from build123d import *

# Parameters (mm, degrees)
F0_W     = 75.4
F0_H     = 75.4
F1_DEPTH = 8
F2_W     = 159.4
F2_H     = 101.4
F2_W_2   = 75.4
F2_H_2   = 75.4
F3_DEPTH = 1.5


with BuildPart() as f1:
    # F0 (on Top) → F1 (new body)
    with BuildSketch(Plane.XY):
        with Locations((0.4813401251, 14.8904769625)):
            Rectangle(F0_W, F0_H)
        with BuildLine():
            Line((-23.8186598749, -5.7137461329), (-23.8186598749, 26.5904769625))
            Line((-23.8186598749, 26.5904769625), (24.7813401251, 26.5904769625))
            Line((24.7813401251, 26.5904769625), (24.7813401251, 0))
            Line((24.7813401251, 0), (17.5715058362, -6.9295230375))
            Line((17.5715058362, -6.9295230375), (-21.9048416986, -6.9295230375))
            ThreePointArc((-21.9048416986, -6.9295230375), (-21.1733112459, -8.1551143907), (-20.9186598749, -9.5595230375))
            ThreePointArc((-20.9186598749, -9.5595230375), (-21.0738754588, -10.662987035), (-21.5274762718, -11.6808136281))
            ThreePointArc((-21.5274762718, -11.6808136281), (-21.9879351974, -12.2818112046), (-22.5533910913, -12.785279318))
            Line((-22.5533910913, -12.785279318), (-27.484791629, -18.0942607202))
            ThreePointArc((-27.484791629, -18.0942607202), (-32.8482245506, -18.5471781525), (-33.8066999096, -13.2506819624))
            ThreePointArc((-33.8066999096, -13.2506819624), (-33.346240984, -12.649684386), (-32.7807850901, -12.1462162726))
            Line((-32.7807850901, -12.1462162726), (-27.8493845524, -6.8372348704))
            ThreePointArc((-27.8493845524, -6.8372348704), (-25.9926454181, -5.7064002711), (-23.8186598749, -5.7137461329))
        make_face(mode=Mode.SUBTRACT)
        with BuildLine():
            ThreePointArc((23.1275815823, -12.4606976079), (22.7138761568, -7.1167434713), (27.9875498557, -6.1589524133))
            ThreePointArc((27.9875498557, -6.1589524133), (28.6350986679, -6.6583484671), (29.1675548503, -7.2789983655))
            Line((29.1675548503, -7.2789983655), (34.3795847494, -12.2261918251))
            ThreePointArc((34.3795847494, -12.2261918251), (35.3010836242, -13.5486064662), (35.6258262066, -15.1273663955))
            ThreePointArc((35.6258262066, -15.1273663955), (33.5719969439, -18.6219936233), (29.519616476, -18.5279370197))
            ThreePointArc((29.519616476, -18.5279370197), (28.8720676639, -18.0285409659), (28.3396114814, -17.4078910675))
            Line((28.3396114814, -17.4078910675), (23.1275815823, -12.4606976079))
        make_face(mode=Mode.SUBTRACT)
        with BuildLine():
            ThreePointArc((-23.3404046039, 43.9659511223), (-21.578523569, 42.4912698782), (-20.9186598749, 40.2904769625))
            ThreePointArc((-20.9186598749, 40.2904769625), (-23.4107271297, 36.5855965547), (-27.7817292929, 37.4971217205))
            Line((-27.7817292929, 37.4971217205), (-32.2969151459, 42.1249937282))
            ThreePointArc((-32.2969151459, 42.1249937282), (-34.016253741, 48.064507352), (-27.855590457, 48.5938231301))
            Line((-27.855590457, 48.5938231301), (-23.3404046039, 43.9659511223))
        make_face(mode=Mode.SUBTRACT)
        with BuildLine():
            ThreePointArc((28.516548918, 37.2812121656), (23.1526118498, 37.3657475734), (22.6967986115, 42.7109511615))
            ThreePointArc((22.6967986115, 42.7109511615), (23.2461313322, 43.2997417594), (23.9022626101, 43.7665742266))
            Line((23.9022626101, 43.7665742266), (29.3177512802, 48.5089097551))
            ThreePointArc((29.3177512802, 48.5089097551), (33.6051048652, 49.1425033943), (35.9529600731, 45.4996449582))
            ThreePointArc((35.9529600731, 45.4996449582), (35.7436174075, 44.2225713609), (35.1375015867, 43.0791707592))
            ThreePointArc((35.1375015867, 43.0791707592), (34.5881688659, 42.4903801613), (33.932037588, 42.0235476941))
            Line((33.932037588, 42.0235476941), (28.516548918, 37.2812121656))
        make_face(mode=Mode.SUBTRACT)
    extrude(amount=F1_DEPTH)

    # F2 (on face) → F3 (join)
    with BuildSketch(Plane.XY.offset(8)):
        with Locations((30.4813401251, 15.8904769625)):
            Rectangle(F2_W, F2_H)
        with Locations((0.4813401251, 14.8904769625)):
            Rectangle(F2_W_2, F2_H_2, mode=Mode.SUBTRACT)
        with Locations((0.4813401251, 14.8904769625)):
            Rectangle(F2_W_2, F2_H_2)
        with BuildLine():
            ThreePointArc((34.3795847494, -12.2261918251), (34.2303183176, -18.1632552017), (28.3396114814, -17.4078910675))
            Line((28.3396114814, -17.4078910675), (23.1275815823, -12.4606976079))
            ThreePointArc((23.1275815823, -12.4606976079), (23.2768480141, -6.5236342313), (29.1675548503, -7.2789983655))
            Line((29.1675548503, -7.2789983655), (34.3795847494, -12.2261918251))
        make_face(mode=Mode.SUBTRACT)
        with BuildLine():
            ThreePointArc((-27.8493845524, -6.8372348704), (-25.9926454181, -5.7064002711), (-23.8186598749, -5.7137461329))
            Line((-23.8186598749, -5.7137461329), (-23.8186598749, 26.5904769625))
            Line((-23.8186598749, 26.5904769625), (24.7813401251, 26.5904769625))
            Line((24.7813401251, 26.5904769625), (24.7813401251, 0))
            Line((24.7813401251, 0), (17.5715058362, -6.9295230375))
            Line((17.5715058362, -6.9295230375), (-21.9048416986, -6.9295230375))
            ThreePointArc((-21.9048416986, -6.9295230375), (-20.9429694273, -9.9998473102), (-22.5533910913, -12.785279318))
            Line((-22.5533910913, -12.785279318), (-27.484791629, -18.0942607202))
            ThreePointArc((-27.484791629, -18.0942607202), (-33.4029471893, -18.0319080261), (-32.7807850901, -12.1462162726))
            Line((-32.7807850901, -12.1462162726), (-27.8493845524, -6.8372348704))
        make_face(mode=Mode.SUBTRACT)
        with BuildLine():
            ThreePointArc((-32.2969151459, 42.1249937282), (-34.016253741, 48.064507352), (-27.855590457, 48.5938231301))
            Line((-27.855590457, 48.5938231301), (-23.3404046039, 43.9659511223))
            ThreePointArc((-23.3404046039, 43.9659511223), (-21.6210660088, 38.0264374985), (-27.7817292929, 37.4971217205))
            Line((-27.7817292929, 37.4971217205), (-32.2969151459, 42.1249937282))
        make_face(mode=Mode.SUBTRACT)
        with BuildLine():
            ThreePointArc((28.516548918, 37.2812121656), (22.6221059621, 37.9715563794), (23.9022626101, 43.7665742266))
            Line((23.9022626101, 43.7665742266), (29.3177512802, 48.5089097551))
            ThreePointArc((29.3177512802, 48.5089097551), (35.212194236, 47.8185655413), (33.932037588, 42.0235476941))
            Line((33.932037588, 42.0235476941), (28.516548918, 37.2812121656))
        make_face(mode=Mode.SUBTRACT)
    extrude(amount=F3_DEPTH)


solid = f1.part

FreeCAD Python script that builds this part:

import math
import FreeCAD as App
import Part
import Sketcher

V = App.Vector
Q = App.Units.Quantity

doc = App.newDocument("Part")
params = doc.addObject("Spreadsheet::Sheet", "Params")
for row, (alias, value) in enumerate([
    ("sketch1_radius", "4 mm"),
    ("sketch1_length", "10 mm"),
    ("sketch1_width", "75.4 mm"),
    ("sketch1_width2", "48.6 mm"),
    ("pad1_length", "8 mm"),
    ("sketch2_radius", "4 mm"),
    ("sketch2_length", "10 mm"),
    ("sketch2_width", "159.4 mm"),
    ("sketch2_width2", "48.6 mm"),
    ("sketch2_height", "101.4 mm"),
    ("pad2_length", "1.5 mm"),
], start=1):
    params.set(f"A{row}", alias)
    params.set(f"B{row}", "=" + value)
    params.setAlias(f"B{row}", alias)

body = doc.addObject("PartDesign::Body", "Body")

# Sketch on XY plane
sketch1 = body.newObject("Sketcher::SketchObject", "Sketch")
sketch1.AttachmentSupport = (doc.getObject("XY_Plane"), [""])
sketch1.MapMode = "FlatFace"
sketch1.addGeometry([
    Part.LineSegment(V(-37.21866, 52.590477, 0), V(-37.21866, -22.809523, 0)),  # 0
    Part.LineSegment(V(-37.21866, -22.809523, 0), V(38.18134, -22.809523, 0)),  # 1
    Part.LineSegment(V(38.18134, -22.809523, 0), V(38.18134, 52.590477, 0)),  # 2
    Part.LineSegment(V(38.18134, 52.590477, 0), V(-37.21866, 52.590477, 0)),  # 3
    Part.ArcOfCircle(Part.Circle(V(-24.91866, -9.559523, 0), V(0, 0, 1), 4), math.radians(74.037986), math.radians(137.111639)),  # 4
    Part.LineSegment(V(-23.81866, -5.713746, 0), V(-23.81866, 26.590477, 0)),  # 5
    Part.LineSegment(V(-23.81866, 26.590477, 0), V(24.78134, 26.590477, 0)),  # 6
    Part.LineSegment(V(24.78134, 26.590477, 0), V(24.78134, 0, 0)),  # 7
    Part.LineSegment(V(24.78134, 0, 0), V(17.571506, -6.929523, 0)),  # 8
    Part.LineSegment(V(17.571506, -6.929523, 0), V(-21.904842, -6.929523, 0)),  # 9
    Part.ArcOfCircle(Part.Circle(V(-24.91866, -9.559523, 0), V(0, 0, 1), 4), math.radians(0), math.radians(41.109486)),  # 10
    Part.ArcOfCircle(Part.Circle(V(-24.91866, -9.559523, 0), V(0, 0, 1), 4), math.radians(-32.027257), math.radians(0)),  # 11
    Part.ArcOfCircle(Part.Circle(V(-24.91866, -9.559523, 0), V(0, 0, 1), 4), math.radians(-53.749464), math.radians(-32.027257)),  # 12
    Part.LineSegment(V(-22.553391, -12.785279, 0), V(-27.484792, -18.094261, 0)),  # 13
    Part.ArcOfCircle(Part.Circle(V(-30.415516, -15.371973, 0), V(0, 0, 1), 4), math.radians(147.972743), math.radians(317.111639)),  # 14
    Part.ArcOfCircle(Part.Circle(V(-30.415516, -15.371973, 0), V(0, 0, 1), 4), math.radians(126.250536), math.radians(147.972743)),  # 15
    Part.LineSegment(V(-32.780785, -12.146216, 0), V(-27.849385, -6.837235, 0)),  # 16
    Part.LineSegment(V(28.339611, -17.407891, 0), V(23.127582, -12.460698, 0)),  # 17
    Part.ArcOfCircle(Part.Circle(V(25.88134, -9.559523, 0), V(0, 0, 1), 4), math.radians(58.227189), math.radians(226.493281)),  # 18
    Part.ArcOfCircle(Part.Circle(V(25.88134, -9.559523, 0), V(0, 0, 1), 4), math.radians(34.759373), math.radians(58.227189)),  # 19
    Part.LineSegment(V(29.167555, -7.278998, 0), V(34.379585, -12.226192, 0)),  # 20
    Part.ArcOfCircle(Part.Circle(V(31.625826, -15.127366, 0), V(0, 0, 1), 4), math.radians(0), math.radians(46.493281)),  # 21
    Part.ArcOfCircle(Part.Circle(V(31.625826, -15.127366, 0), V(0, 0, 1), 4), math.radians(-121.772811), math.radians(0)),  # 22
    Part.ArcOfCircle(Part.Circle(V(31.625826, -15.127366, 0), V(0, 0, 1), 4), math.radians(-145.240627), math.radians(-121.772811)),  # 23
    Part.LineSegment(V(-27.85559, 48.593823, 0), V(-23.340405, 43.965951, 0)),  # 24
    Part.ArcOfCircle(Part.Circle(V(-24.91866, 40.290477, 0), V(0, 0, 1), 4), math.radians(0), math.radians(66.761227)),  # 25
    Part.ArcOfCircle(Part.Circle(V(-24.91866, 40.290477, 0), V(0, 0, 1), 4), math.radians(-135.706122), math.radians(0)),  # 26
    Part.LineSegment(V(-27.781729, 37.497122, 0), V(-32.296915, 42.124994, 0)),  # 27
    Part.ArcOfCircle(Part.Circle(V(-30.71866, 45.800468, 0), V(0, 0, 1), 4), math.radians(44.293878), math.radians(246.761227)),  # 28
    Part.LineSegment(V(33.932038, 42.023548, 0), V(28.516549, 37.281212, 0)),  # 29
    Part.ArcOfCircle(Part.Circle(V(25.88134, 40.290477, 0), V(0, 0, 1), 4), math.radians(142.762627), math.radians(311.208585)),  # 30
    Part.ArcOfCircle(Part.Circle(V(25.88134, 40.290477, 0), V(0, 0, 1), 4), math.radians(119.654544), math.radians(142.762627)),  # 31
    Part.LineSegment(V(23.902263, 43.766574, 0), V(29.317751, 48.50891, 0)),  # 32
    Part.ArcOfCircle(Part.Circle(V(31.95296, 45.499645, 0), V(0, 0, 1), 4), math.radians(0), math.radians(131.208585)),  # 33
    Part.ArcOfCircle(Part.Circle(V(31.95296, 45.499645, 0), V(0, 0, 1), 4), math.radians(-37.237373), math.radians(0)),  # 34
    Part.ArcOfCircle(Part.Circle(V(31.95296, 45.499645, 0), V(0, 0, 1), 4), math.radians(-60.345456), math.radians(-37.237373)),  # 35
], False)
sketch1.addConstraint([
    Sketcher.Constraint("Coincident", 0, 2, 1, 1),
    Sketcher.Constraint("Coincident", 1, 2, 2, 1),
    Sketcher.Constraint("Coincident", 2, 2, 3, 1),
    Sketcher.Constraint("Coincident", 3, 2, 0, 1),
    Sketcher.Constraint("Coincident", 4, 1, 5, 1),
    Sketcher.Constraint("Coincident", 5, 2, 6, 1),
    Sketcher.Constraint("Coincident", 6, 2, 7, 1),
    Sketcher.Constraint("Coincident", 7, 2, 8, 1),
    Sketcher.Constraint("Coincident", 8, 2, 9, 1),
    Sketcher.Constraint("Coincident", 9, 2, 10, 2),
    Sketcher.Constraint("Tangent", 10, 1, 11, 2),
    Sketcher.Constraint("Tangent", 11, 1, 12, 2),
    Sketcher.Constraint("Coincident", 12, 1, 13, 1),
    Sketcher.Constraint("Tangent", 13, 2, 14, 2),
    Sketcher.Constraint("Tangent", 14, 1, 15, 2),
    Sketcher.Constraint("Coincident", 15, 1, 16, 1),
    Sketcher.Constraint("Tangent", 16, 2, 4, 2),
    Sketcher.Constraint("Tangent", 17, 2, 18, 2),
    Sketcher.Constraint("Tangent", 18, 1, 19, 2),
    Sketcher.Constraint("Coincident", 19, 1, 20, 1),
    Sketcher.Constraint("Tangent", 20, 2, 21, 2),
    Sketcher.Constraint("Tangent", 21, 1, 22, 2),
    Sketcher.Constraint("Tangent", 22, 1, 23, 2),
    Sketcher.Constraint("Coincident", 23, 1, 17, 1),
    Sketcher.Constraint("Coincident", 24, 2, 25, 2),
    Sketcher.Constraint("Tangent", 25, 1, 26, 2),
    Sketcher.Constraint("Tangent", 26, 1, 27, 1),
    Sketcher.Constraint("Coincident", 27, 2, 28, 2),
    Sketcher.Constraint("Tangent", 28, 1, 24, 1),
    Sketcher.Constraint("Tangent", 29, 2, 30, 2),
    Sketcher.Constraint("Tangent", 30, 1, 31, 2),
    Sketcher.Constraint("Coincident", 31, 1, 32, 1),
    Sketcher.Constraint("Tangent", 32, 2, 33, 2),
    Sketcher.Constraint("Tangent", 33, 1, 34, 2),
    Sketcher.Constraint("Tangent", 34, 1, 35, 2),
    Sketcher.Constraint("Coincident", 35, 1, 29, 1),
    Sketcher.Constraint("Vertical", 0),
    Sketcher.Constraint("Horizontal", 1),
    Sketcher.Constraint("Vertical", 2),
    Sketcher.Constraint("Horizontal", 3),
    Sketcher.Constraint("Vertical", 5),
    Sketcher.Constraint("Horizontal", 6),
    Sketcher.Constraint("Vertical", 7),
    Sketcher.Constraint("Horizontal", 9),
    Sketcher.Constraint("Coincident", 10, 3, 4, 3),
    Sketcher.Constraint("Coincident", 12, 3, 4, 3),
    Sketcher.Constraint("Coincident", 23, 3, 21, 3),
    Sketcher.Constraint("Coincident", 35, 3, 33, 3),
    Sketcher.Constraint("Equal", 4, 10),
    Sketcher.Constraint("Equal", 12, 14),
    Sketcher.Constraint("Equal", 14, 15),
    Sketcher.Constraint("Equal", 15, 18),
    Sketcher.Constraint("Equal", 18, 19),
    Sketcher.Constraint("Equal", 19, 21),
    Sketcher.Constraint("Equal", 23, 25),
    Sketcher.Constraint("Equal", 25, 26),
    Sketcher.Constraint("Equal", 26, 28),
    Sketcher.Constraint("Equal", 28, 30),
    Sketcher.Constraint("Equal", 30, 31),
    Sketcher.Constraint("Equal", 31, 33),
    Sketcher.Constraint("PointOnObject", 7, 2, -1),
    Sketcher.Constraint("Parallel", 13, 16),
    Sketcher.Constraint("Parallel", 17, 20),
    Sketcher.Constraint("Parallel", 24, 27),
    Sketcher.Constraint("Parallel", 29, 32),
    Sketcher.Constraint("Horizontal", 12, 3, 18, 3),
    Sketcher.Constraint("Horizontal", 26, 3, 30, 3),
    Sketcher.Constraint("Horizontal", 19, 3, 10, 1),
    Sketcher.Constraint("Horizontal", 23, 3, 21, 1),
    Sketcher.Constraint("Horizontal", 31, 3, 25, 1),
    Sketcher.Constraint("Horizontal", 35, 3, 33, 1),
    Sketcher.Constraint("Vertical", 12, 3, 25, 3),
    Sketcher.Constraint("Vertical", 19, 3, 30, 3),
    Sketcher.Constraint("Equal", 3, 0),
    Sketcher.Constraint("Radius", 4, Q("4 mm")),
    Sketcher.Constraint("Distance", 8, Q("10 mm")),
    Sketcher.Constraint("DistanceX", 1, 1, 1, 2, Q("75.4 mm")),
    Sketcher.Constraint("DistanceX", 6, 1, 6, 2, Q("48.6 mm")),
    Sketcher.Constraint("DistanceY", 5, 2, 3, 2, Q("26 mm")),
    Sketcher.Constraint("DistanceX", 11, 3, 18, 3, Q("50.8 mm")),
    Sketcher.Constraint("DistanceX", 28, 3, 25, 3, Q("5.8 mm")),
    Sketcher.Constraint("DistanceX", 0, 2, 12, 3, Q("12.3 mm")),
    Sketcher.Constraint("DistanceY", 31, 3, 2, 2, Q("12.3 mm")),
    Sketcher.Constraint("DistanceX", 10, 3, 4, 1, Q("1.1 mm")),
    Sketcher.Constraint("DistanceY", 10, 3, 25, 3, Q("49.85 mm")),
    Sketcher.Constraint("DistanceY", 18, 3, 8, 2, Q("2.63 mm")),
    Sketcher.Constraint("DistanceY", 19, 1, -1, 1, Q("7.278998 mm")),
    Sketcher.Constraint("DistanceX", 14, 1, -1, 1, Q("33.8067 mm")),
    Sketcher.Constraint("DistanceX", -1, 1, 30, 1, Q("22.696799 mm")),
    Sketcher.Constraint("DistanceX", -1, 1, 34, 1, Q("35.137502 mm")),
    Sketcher.Constraint("DistanceX", 13, 2, 12, 1, Q("4.931401 mm")),
    Sketcher.Constraint("DistanceY", 17, 2, 19, 1, Q("5.181699 mm")),
    Sketcher.Constraint("Distance", 24, Q("6.465609 mm")),
    Sketcher.Constraint("Distance", 29, Q("7.198421 mm")),
    Sketcher.Constraint("DistanceX", 9, 2, 9, 1, Q("39.476348 mm")),
    Sketcher.Constraint("DistanceX", 4, 3, -1, 1, Q("24.91866 mm")),
    Sketcher.Constraint("DistanceX", -1, 1, 33, 3, Q("31.95296 mm")),
    Sketcher.Constraint("DistanceX", 12, 1, -1, 1, Q("22.553391 mm")),
    Sketcher.Constraint("DistanceY", 13, 2, -1, 1, Q("18.094261 mm")),
    Sketcher.Constraint("DistanceX", -1, 1, 18, 1, Q("27.98755 mm")),
    Sketcher.Constraint("DistanceY", 20, 2, -1, 1, Q("12.226192 mm")),
    Sketcher.Constraint("DistanceY", -1, 1, 24, 2, Q("43.965951 mm")),
    Sketcher.Constraint("DistanceX", -1, 1, 29, 2, Q("28.516549 mm")),
    Sketcher.Constraint("DistanceY", 11, 1, 10, 1, Q("2.121291 mm")),
    Sketcher.Constraint("DistanceX", 22, 1, 21, 3, Q("2.10621 mm")),
])
sketch1.setExpression("Constraints[74]", "Params.sketch1_radius")
sketch1.setExpression("Constraints[75]", "Params.sketch1_length")
sketch1.setExpression("Constraints[76]", "Params.sketch1_width")
sketch1.setExpression("Constraints[77]", "Params.sketch1_width2")
pad1 = body.newObject("PartDesign::Pad", "Pad")
pad1.Profile = sketch1
pad1.setExpression("Length", "Params.pad1_length")

# Sketch on XY plane
sketch2 = body.newObject("Sketcher::SketchObject", "Sketch001")
sketch2.AttachmentSupport = (doc.getObject("XY_Plane"), [""])
sketch2.MapMode = "FlatFace"
sketch2.AttachmentOffset = App.Placement(V(0, 0, 8), App.Rotation())
sketch2.addGeometry([
    Part.LineSegment(V(-49.21866, 66.590477, 0), V(-49.21866, -34.809523, 0)),  # 0
    Part.LineSegment(V(-49.21866, -34.809523, 0), V(110.18134, -34.809523, 0)),  # 1
    Part.LineSegment(V(110.18134, -34.809523, 0), V(110.18134, 66.590477, 0)),  # 2
    Part.LineSegment(V(110.18134, 66.590477, 0), V(-49.21866, 66.590477, 0)),  # 3
    Part.LineSegment(V(-32.780785, -12.146216, 0), V(-27.849385, -6.837235, 0)),  # 4
    Part.ArcOfCircle(Part.Circle(V(-24.91866, -9.559523, 0), V(0, 0, 1), 4), math.radians(74.037986), math.radians(137.111639)),  # 5
    Part.LineSegment(V(-23.81866, -5.713746, 0), V(-23.81866, 26.590477, 0)),  # 6
    Part.LineSegment(V(-23.81866, 26.590477, 0), V(24.78134, 26.590477, 0)),  # 7
    Part.LineSegment(V(24.78134, 26.590477, 0), V(24.78134, 0, 0)),  # 8
    Part.LineSegment(V(24.78134, 0, 0), V(17.571506, -6.929523, 0)),  # 9
    Part.LineSegment(V(17.571506, -6.929523, 0), V(-21.904842, -6.929523, 0)),  # 10
    Part.ArcOfCircle(Part.Circle(V(-24.91866, -9.559523, 0), V(0, 0, 1), 4), math.radians(-53.749464), math.radians(41.109486)),  # 11
    Part.LineSegment(V(-22.553391, -12.785279, 0), V(-27.484792, -18.094261, 0)),  # 12
    Part.ArcOfCircle(Part.Circle(V(-30.415516, -15.371973, 0), V(0, 0, 1), 4), math.radians(126.250536), math.radians(317.111639)),  # 13
    Part.LineSegment(V(29.167555, -7.278998, 0), V(34.379585, -12.226192, 0)),  # 14
    Part.ArcOfCircle(Part.Circle(V(31.625826, -15.127366, 0), V(0, 0, 1), 4), math.radians(-145.240627), math.radians(46.493281)),  # 15
    Part.LineSegment(V(28.339611, -17.407891, 0), V(23.127582, -12.460698, 0)),  # 16
    Part.ArcOfCircle(Part.Circle(V(25.88134, -9.559523, 0), V(0, 0, 1), 4), math.radians(34.759373), math.radians(226.493281)),  # 17
    Part.LineSegment(V(-27.781729, 37.497122, 0), V(-32.296915, 42.124994, 0)),  # 18
    Part.ArcOfCircle(Part.Circle(V(-30.71866, 45.800468, 0), V(0, 0, 1), 4), math.radians(44.293878), math.radians(246.761227)),  # 19
    Part.LineSegment(V(-27.85559, 48.593823, 0), V(-23.340405, 43.965951, 0)),  # 20
    Part.ArcOfCircle(Part.Circle(V(-24.91866, 40.290477, 0), V(0, 0, 1), 4), math.radians(-135.706122), math.radians(66.761227)),  # 21
    Part.LineSegment(V(33.932038, 42.023548, 0), V(28.516549, 37.281212, 0)),  # 22
    Part.ArcOfCircle(Part.Circle(V(25.88134, 40.290477, 0), V(0, 0, 1), 4), math.radians(119.654544), math.radians(311.208585)),  # 23
    Part.LineSegment(V(23.902263, 43.766574, 0), V(29.317751, 48.50891, 0)),  # 24
    Part.ArcOfCircle(Part.Circle(V(31.95296, 45.499645, 0), V(0, 0, 1), 4), math.radians(-60.345456), math.radians(131.208585)),  # 25
], False)
sketch2.addConstraint([
    Sketcher.Constraint("Coincident", 0, 2, 1, 1),
    Sketcher.Constraint("Coincident", 1, 2, 2, 1),
    Sketcher.Constraint("Coincident", 2, 2, 3, 1),
    Sketcher.Constraint("Coincident", 3, 2, 0, 1),
    Sketcher.Constraint("Tangent", 4, 2, 5, 2),
    Sketcher.Constraint("Coincident", 5, 1, 6, 1),
    Sketcher.Constraint("Coincident", 6, 2, 7, 1),
    Sketcher.Constraint("Coincident", 7, 2, 8, 1),
    Sketcher.Constraint("Coincident", 8, 2, 9, 1),
    Sketcher.Constraint("Coincident", 9, 2, 10, 1),
    Sketcher.Constraint("Coincident", 10, 2, 11, 2),
    Sketcher.Constraint("Coincident", 11, 1, 12, 1),
    Sketcher.Constraint("Tangent", 12, 2, 13, 2),
    Sketcher.Constraint("Coincident", 13, 1, 4, 1),
    Sketcher.Constraint("Tangent", 14, 2, 15, 2),
    Sketcher.Constraint("Coincident", 15, 1, 16, 1),
    Sketcher.Constraint("Tangent", 16, 2, 17, 2),
    Sketcher.Constraint("Coincident", 17, 1, 14, 1),
    Sketcher.Constraint("Coincident", 18, 2, 19, 2),
    Sketcher.Constraint("Tangent", 19, 1, 20, 1),
    Sketcher.Constraint("Coincident", 20, 2, 21, 2),
    Sketcher.Constraint("Tangent", 21, 1, 18, 1),
    Sketcher.Constraint("Tangent", 22, 2, 23, 2),
    Sketcher.Constraint("Coincident", 23, 1, 24, 1),
    Sketcher.Constraint("Tangent", 24, 2, 25, 2),
    Sketcher.Constraint("Coincident", 25, 1, 22, 1),
    Sketcher.Constraint("Vertical", 0),
    Sketcher.Constraint("Horizontal", 1),
    Sketcher.Constraint("Vertical", 2),
    Sketcher.Constraint("Horizontal", 3),
    Sketcher.Constraint("Vertical", 6),
    Sketcher.Constraint("Horizontal", 7),
    Sketcher.Constraint("Vertical", 8),
    Sketcher.Constraint("Horizontal", 10),
    Sketcher.Constraint("Coincident", 11, 3, 5, 3),
    Sketcher.Constraint("Equal", 5, 11),
    Sketcher.Constraint("Equal", 11, 13),
    Sketcher.Constraint("Equal", 13, 15),
    Sketcher.Constraint("Equal", 15, 17),
    Sketcher.Constraint("Equal", 17, 19),
    Sketcher.Constraint("Equal", 19, 21),
    Sketcher.Constraint("Equal", 21, 23),
    Sketcher.Constraint("Equal", 23, 25),
    Sketcher.Constraint("PointOnObject", 8, 2, -1),
    Sketcher.Constraint("Parallel", 4, 12),
    Sketcher.Constraint("Parallel", 14, 16),
    Sketcher.Constraint("Parallel", 18, 20),
    Sketcher.Constraint("Parallel", 22, 24),
    Sketcher.Constraint("Horizontal", 11, 3, 17, 3),
    Sketcher.Constraint("Horizontal", 21, 3, 23, 3),
    Sketcher.Constraint("Vertical", 11, 3, 21, 3),
    Sketcher.Constraint("Vertical", 17, 3, 23, 3),
    Sketcher.Constraint("Radius", 5, Q("4 mm")),
    Sketcher.Constraint("Distance", 9, Q("10 mm")),
    Sketcher.Constraint("DistanceX", 1, 1, 1, 2, Q("159.4 mm")),
    Sketcher.Constraint("DistanceX", 7, 1, 7, 2, Q("48.6 mm")),
    Sketcher.Constraint("DistanceY", 0, 2, 0, 1, Q("101.4 mm")),
    Sketcher.Constraint("DistanceX", 5, 3, 17, 3, Q("50.8 mm")),
    Sketcher.Constraint("DistanceX", 19, 3, 5, 3, Q("5.8 mm")),
    Sketcher.Constraint("DistanceX", 0, 2, 5, 3, Q("24.3 mm")),
    Sketcher.Constraint("DistanceY", 0, 2, 21, 3, Q("75.1 mm")),
    Sketcher.Constraint("DistanceX", 5, 3, 5, 1, Q("1.1 mm")),
    Sketcher.Constraint("DistanceY", 6, 2, 21, 3, Q("13.7 mm")),
    Sketcher.Constraint("DistanceY", 5, 3, 21, 3, Q("49.85 mm")),
    Sketcher.Constraint("DistanceY", 17, 3, 9, 2, Q("2.63 mm")),
    Sketcher.Constraint("DistanceY", 17, 1, -1, 1, Q("7.278998 mm")),
    Sketcher.Constraint("DistanceX", 12, 2, 11, 1, Q("4.931401 mm")),
    Sketcher.Constraint("DistanceY", 15, 1, 14, 2, Q("5.181699 mm")),
    Sketcher.Constraint("DistanceY", 21, 1, 19, 1, Q("11.096701 mm")),
    Sketcher.Constraint("Distance", 18, Q("6.465609 mm")),
    Sketcher.Constraint("Distance", 22, Q("7.198421 mm")),
    Sketcher.Constraint("DistanceX", 10, 2, 10, 1, Q("39.476348 mm")),
    Sketcher.Constraint("DistanceX", 5, 3, -1, 1, Q("24.91866 mm")),
    Sketcher.Constraint("DistanceX", -1, 1, 25, 3, Q("31.95296 mm")),
    Sketcher.Constraint("DistanceX", 11, 1, -1, 1, Q("22.553391 mm")),
    Sketcher.Constraint("DistanceY", 12, 2, -1, 1, Q("18.094261 mm")),
    Sketcher.Constraint("DistanceY", 14, 2, -1, 1, Q("12.226192 mm")),
    Sketcher.Constraint("DistanceX", -1, 1, 22, 2, Q("28.516549 mm")),
])
sketch2.setExpression("Constraints[52]", "Params.sketch2_radius")
sketch2.setExpression("Constraints[53]", "Params.sketch2_length")
sketch2.setExpression("Constraints[54]", "Params.sketch2_width")
sketch2.setExpression("Constraints[55]", "Params.sketch2_width2")
sketch2.setExpression("Constraints[56]", "Params.sketch2_height")
pad2 = body.newObject("PartDesign::Pad", "Pad001")
pad2.Profile = sketch2
pad2.setExpression("Length", "Params.pad2_length")

doc.recompute()
